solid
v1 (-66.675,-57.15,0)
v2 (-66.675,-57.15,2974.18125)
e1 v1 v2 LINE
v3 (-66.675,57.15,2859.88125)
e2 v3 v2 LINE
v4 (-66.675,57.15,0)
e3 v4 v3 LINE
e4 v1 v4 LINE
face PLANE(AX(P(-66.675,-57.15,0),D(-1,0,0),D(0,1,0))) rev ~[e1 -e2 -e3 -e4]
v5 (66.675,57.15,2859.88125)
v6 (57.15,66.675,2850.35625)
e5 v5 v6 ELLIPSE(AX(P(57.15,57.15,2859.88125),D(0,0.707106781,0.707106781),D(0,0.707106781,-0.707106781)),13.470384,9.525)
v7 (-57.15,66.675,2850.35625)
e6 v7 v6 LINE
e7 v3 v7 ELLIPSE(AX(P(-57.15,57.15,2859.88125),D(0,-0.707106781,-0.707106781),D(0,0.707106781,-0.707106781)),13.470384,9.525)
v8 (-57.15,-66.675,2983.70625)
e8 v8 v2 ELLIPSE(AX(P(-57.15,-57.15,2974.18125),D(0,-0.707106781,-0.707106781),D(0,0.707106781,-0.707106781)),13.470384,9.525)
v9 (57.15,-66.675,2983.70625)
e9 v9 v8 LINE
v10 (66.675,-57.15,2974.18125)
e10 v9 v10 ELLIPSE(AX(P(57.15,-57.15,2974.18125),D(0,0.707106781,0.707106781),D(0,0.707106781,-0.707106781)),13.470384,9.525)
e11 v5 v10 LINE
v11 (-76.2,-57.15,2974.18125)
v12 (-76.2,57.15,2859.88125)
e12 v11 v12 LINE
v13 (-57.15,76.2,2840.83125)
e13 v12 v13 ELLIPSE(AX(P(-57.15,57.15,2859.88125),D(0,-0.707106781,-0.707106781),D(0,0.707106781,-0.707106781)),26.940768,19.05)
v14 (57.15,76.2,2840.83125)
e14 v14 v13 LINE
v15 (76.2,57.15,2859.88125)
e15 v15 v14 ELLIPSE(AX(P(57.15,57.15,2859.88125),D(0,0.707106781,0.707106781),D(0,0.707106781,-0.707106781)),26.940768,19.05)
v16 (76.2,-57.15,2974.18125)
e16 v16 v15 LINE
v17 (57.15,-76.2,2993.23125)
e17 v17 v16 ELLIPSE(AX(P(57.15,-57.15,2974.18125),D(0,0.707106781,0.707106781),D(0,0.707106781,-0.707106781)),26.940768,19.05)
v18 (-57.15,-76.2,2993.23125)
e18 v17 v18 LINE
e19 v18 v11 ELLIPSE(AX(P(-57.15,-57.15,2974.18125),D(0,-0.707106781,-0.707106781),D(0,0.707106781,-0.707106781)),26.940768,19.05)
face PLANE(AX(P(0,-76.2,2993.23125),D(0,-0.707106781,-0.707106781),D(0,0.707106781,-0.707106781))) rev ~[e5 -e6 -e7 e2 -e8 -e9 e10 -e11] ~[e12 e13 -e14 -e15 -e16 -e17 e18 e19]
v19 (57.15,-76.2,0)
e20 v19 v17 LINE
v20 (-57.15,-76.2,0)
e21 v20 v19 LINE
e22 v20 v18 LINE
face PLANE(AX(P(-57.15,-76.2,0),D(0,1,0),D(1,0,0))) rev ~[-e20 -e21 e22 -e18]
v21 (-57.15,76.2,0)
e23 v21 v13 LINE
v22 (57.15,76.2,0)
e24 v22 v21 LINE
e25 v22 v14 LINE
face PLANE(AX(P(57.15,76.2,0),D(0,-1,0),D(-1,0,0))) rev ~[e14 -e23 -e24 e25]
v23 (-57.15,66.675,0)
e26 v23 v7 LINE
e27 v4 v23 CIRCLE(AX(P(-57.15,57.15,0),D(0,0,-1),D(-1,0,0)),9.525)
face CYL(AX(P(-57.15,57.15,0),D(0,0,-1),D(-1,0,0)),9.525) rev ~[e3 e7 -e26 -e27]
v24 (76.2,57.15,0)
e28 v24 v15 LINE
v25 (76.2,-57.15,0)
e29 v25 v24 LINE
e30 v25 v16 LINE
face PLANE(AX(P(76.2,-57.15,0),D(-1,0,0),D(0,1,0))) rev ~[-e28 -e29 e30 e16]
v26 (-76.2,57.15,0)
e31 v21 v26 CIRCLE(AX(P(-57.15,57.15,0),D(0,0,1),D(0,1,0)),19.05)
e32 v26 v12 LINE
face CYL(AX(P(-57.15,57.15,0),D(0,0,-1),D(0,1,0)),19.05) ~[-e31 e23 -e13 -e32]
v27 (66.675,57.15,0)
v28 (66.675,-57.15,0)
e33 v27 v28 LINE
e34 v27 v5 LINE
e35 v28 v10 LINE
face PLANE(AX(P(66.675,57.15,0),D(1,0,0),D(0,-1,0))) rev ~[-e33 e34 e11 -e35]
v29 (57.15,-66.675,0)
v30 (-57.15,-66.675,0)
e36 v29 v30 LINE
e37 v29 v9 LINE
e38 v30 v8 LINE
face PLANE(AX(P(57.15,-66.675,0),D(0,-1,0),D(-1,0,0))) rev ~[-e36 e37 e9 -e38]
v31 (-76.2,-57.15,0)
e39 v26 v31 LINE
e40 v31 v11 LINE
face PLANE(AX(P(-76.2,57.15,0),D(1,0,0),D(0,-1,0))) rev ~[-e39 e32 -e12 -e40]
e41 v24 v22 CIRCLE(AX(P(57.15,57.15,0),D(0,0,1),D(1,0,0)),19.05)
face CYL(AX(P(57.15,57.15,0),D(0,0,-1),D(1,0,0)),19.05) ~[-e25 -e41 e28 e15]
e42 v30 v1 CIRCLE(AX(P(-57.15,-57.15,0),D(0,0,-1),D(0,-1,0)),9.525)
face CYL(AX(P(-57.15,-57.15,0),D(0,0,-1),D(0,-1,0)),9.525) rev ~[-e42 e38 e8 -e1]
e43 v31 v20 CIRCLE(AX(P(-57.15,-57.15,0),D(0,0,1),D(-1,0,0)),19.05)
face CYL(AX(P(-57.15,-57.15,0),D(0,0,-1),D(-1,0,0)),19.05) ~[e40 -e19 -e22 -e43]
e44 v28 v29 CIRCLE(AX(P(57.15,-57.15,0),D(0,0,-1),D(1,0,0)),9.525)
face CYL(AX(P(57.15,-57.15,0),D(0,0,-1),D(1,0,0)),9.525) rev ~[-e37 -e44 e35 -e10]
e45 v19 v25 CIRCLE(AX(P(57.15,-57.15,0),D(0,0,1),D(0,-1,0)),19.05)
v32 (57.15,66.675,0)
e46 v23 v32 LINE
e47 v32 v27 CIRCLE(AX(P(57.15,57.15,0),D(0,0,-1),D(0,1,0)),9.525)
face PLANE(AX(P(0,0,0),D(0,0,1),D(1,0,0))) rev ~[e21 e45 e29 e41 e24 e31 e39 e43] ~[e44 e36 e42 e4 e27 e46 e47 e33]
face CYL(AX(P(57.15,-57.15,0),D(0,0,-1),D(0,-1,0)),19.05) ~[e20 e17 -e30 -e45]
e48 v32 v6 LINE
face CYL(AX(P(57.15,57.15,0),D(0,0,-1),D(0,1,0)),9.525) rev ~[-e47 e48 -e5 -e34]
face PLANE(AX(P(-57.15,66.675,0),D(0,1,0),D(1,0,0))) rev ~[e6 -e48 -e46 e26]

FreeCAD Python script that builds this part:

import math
import FreeCAD as App
import Part
import Sketcher
Q = App.Units.Quantity


def add_polygon(sketch, points):
    """Adds a closed chain of lines whose ends are joined by coincident constraints."""
    first, n = sketch.GeometryCount, len(points)
    for a, b in zip(points, points[1:] + points[:1]):
        sketch.addGeometry(Part.LineSegment(App.Vector(*a, 0), App.Vector(*b, 0)), False)
    for i in range(n):
        sketch.addConstraint(Sketcher.Constraint("Coincident", first + i, 2, first + (i + 1) % n, 1))

doc = App.newDocument("Part")
body = doc.addObject("PartDesign::Body", "Body")

# Sketch on XY plane
sketch1 = doc.addObject("Sketcher::SketchObject", "Sketch")
body.addObject(sketch1)
sketch1.AttachmentSupport = (doc.XY_Plane, [""])
sketch1.MapMode = "FlatFace"
sketch1.addGeometry([
    Part.ArcOfCircle(Part.Circle(App.Vector(-57, -57, 0), App.Vector(0, 0, 1), 19), math.radians(180), math.radians(270)),  # 0
    Part.LineSegment(App.Vector(-57, -76, 0), App.Vector(57, -76, 0)),  # 1
    Part.ArcOfCircle(Part.Circle(App.Vector(57, -57, 0), App.Vector(0, 0, 1), 19), math.radians(-90), math.radians(0)),  # 2
    Part.LineSegment(App.Vector(76, -57, 0), App.Vector(76, 57, 0)),  # 3
    Part.ArcOfCircle(Part.Circle(App.Vector(57, 57, 0), App.Vector(0, 0, 1), 19), math.radians(0), math.radians(90)),  # 4
    Part.LineSegment(App.Vector(57, 76, 0), App.Vector(-57, 76, 0)),  # 5
    Part.ArcOfCircle(Part.Circle(App.Vector(-57, 57, 0), App.Vector(0, 0, 1), 19), math.radians(90), math.radians(180)),  # 6
    Part.LineSegment(App.Vector(-76, 57, 0), App.Vector(-76, -57, 0)),  # 7
    Part.ArcOfCircle(Part.Circle(App.Vector(57, -57, 0), App.Vector(0, 0, 1), 10), math.radians(-90), math.radians(0)),  # 8
    Part.LineSegment(App.Vector(57, -67, 0), App.Vector(-57, -67, 0)),  # 9
    Part.ArcOfCircle(Part.Circle(App.Vector(-57, -57, 0), App.Vector(0, 0, 1), 10), math.radians(180), math.radians(270)),  # 10
    Part.LineSegment(App.Vector(-67, -57, 0), App.Vector(-67, 57, 0)),  # 11
    Part.ArcOfCircle(Part.Circle(App.Vector(-57, 57, 0), App.Vector(0, 0, 1), 10), math.radians(90), math.radians(180)),  # 12
    Part.LineSegment(App.Vector(-57, 67, 0), App.Vector(57, 67, 0)),  # 13
    Part.ArcOfCircle(Part.Circle(App.Vector(57, 57, 0), App.Vector(0, 0, 1), 10), math.radians(0), math.radians(90)),  # 14
    Part.LineSegment(App.Vector(67, 57, 0), App.Vector(67, -57, 0)),  # 15
], False)
sketch1.addConstraint([
    Sketcher.Constraint("Tangent", 0, 2, 1, 1),
    Sketcher.Constraint("Tangent", 1, 2, 2, 1),
    Sketcher.Constraint("Tangent", 2, 2, 3, 1),
    Sketcher.Constraint("Tangent", 3, 2, 4, 1),
    Sketcher.Constraint("Tangent", 4, 2, 5, 1),
    Sketcher.Constraint("Tangent", 5, 2, 6, 1),
    Sketcher.Constraint("Tangent", 6, 2, 7, 1),
    Sketcher.Constraint("Tangent", 7, 2, 0, 1),
    Sketcher.Constraint("Tangent", 8, 1, 9, 1),
    Sketcher.Constraint("Tangent", 9, 2, 10, 2),
    Sketcher.Constraint("Tangent", 10, 1, 11, 1),
    Sketcher.Constraint("Tangent", 11, 2, 12, 2),
    Sketcher.Constraint("Tangent", 12, 1, 13, 1),
    Sketcher.Constraint("Tangent", 13, 2, 14, 2),
    Sketcher.Constraint("Tangent", 14, 1, 15, 1),
    Sketcher.Constraint("Tangent", 15, 2, 8, 2),
    Sketcher.Constraint("Horizontal", 1),
    Sketcher.Constraint("Vertical", 3),
    Sketcher.Constraint("Horizontal", 5),
    Sketcher.Constraint("Vertical", 7),
    Sketcher.Constraint("Horizontal", 9),
    Sketcher.Constraint("Vertical", 11),
    Sketcher.Constraint("Horizontal", 13),
    Sketcher.Constraint("Vertical", 15),
    Sketcher.Constraint("Coincident", 8, 3, 2, 3),
    Sketcher.Constraint("Coincident", 10, 3, 0, 3),
    Sketcher.Constraint("Coincident", 12, 3, 6, 3),
    Sketcher.Constraint("Equal", 0, 2),
    Sketcher.Constraint("Equal", 2, 4),
    Sketcher.Constraint("Equal", 4, 6),
    Sketcher.Constraint("Equal", 12, 14),
    Sketcher.Constraint("Symmetric", 0, 3, 4, 3, -1, 1),
    Sketcher.Constraint("Equal", 13, 3),
    Sketcher.Constraint("Radius", 0, Q("0.75 in")),
    Sketcher.Constraint("DistanceX", 1, 1, 1, 2, Q("4.5 in")),
    Sketcher.Constraint("Radius", 8, Q("0.375 in")),
])
pad1 = doc.addObject("PartDesign::Pad", "Pad")
body.addObject(pad1)
pad1.Profile = sketch1
pad1.Length = Q("117.84375 in")

# Sketch on YZ plane
sketch2 = doc.addObject("Sketcher::SketchObject", "Sketch001")
body.addObject(sketch2)
sketch2.AttachmentSupport = (doc.YZ_Plane, [""])
sketch2.MapMode = "FlatFace"
add_polygon(sketch2, [(76, 2993), (-76, 2993), (76, 2841)])  # lines 0-2
sketch2.addConstraint([
    Sketcher.Constraint("Horizontal", 0),
    Sketcher.Constraint("Vertical", 2),
    Sketcher.Constraint("Equal", 0, 2),
    Sketcher.Constraint("DistanceX", 0, 2, 0, 1, Q("6 in")),
    Sketcher.Constraint("DistanceX", 0, 2, -1, 1, Q("3 in")),
    Sketcher.Constraint("DistanceY", -1, 1, 0, 2, Q("117.84375 in")),
])
pocket1 = doc.addObject("PartDesign::Pocket", "Pocket")
body.addObject(pocket1)
pocket1.Profile = sketch2
pocket1.Type = "ThroughAll"
pocket1.Midplane = True

doc.recompute()
